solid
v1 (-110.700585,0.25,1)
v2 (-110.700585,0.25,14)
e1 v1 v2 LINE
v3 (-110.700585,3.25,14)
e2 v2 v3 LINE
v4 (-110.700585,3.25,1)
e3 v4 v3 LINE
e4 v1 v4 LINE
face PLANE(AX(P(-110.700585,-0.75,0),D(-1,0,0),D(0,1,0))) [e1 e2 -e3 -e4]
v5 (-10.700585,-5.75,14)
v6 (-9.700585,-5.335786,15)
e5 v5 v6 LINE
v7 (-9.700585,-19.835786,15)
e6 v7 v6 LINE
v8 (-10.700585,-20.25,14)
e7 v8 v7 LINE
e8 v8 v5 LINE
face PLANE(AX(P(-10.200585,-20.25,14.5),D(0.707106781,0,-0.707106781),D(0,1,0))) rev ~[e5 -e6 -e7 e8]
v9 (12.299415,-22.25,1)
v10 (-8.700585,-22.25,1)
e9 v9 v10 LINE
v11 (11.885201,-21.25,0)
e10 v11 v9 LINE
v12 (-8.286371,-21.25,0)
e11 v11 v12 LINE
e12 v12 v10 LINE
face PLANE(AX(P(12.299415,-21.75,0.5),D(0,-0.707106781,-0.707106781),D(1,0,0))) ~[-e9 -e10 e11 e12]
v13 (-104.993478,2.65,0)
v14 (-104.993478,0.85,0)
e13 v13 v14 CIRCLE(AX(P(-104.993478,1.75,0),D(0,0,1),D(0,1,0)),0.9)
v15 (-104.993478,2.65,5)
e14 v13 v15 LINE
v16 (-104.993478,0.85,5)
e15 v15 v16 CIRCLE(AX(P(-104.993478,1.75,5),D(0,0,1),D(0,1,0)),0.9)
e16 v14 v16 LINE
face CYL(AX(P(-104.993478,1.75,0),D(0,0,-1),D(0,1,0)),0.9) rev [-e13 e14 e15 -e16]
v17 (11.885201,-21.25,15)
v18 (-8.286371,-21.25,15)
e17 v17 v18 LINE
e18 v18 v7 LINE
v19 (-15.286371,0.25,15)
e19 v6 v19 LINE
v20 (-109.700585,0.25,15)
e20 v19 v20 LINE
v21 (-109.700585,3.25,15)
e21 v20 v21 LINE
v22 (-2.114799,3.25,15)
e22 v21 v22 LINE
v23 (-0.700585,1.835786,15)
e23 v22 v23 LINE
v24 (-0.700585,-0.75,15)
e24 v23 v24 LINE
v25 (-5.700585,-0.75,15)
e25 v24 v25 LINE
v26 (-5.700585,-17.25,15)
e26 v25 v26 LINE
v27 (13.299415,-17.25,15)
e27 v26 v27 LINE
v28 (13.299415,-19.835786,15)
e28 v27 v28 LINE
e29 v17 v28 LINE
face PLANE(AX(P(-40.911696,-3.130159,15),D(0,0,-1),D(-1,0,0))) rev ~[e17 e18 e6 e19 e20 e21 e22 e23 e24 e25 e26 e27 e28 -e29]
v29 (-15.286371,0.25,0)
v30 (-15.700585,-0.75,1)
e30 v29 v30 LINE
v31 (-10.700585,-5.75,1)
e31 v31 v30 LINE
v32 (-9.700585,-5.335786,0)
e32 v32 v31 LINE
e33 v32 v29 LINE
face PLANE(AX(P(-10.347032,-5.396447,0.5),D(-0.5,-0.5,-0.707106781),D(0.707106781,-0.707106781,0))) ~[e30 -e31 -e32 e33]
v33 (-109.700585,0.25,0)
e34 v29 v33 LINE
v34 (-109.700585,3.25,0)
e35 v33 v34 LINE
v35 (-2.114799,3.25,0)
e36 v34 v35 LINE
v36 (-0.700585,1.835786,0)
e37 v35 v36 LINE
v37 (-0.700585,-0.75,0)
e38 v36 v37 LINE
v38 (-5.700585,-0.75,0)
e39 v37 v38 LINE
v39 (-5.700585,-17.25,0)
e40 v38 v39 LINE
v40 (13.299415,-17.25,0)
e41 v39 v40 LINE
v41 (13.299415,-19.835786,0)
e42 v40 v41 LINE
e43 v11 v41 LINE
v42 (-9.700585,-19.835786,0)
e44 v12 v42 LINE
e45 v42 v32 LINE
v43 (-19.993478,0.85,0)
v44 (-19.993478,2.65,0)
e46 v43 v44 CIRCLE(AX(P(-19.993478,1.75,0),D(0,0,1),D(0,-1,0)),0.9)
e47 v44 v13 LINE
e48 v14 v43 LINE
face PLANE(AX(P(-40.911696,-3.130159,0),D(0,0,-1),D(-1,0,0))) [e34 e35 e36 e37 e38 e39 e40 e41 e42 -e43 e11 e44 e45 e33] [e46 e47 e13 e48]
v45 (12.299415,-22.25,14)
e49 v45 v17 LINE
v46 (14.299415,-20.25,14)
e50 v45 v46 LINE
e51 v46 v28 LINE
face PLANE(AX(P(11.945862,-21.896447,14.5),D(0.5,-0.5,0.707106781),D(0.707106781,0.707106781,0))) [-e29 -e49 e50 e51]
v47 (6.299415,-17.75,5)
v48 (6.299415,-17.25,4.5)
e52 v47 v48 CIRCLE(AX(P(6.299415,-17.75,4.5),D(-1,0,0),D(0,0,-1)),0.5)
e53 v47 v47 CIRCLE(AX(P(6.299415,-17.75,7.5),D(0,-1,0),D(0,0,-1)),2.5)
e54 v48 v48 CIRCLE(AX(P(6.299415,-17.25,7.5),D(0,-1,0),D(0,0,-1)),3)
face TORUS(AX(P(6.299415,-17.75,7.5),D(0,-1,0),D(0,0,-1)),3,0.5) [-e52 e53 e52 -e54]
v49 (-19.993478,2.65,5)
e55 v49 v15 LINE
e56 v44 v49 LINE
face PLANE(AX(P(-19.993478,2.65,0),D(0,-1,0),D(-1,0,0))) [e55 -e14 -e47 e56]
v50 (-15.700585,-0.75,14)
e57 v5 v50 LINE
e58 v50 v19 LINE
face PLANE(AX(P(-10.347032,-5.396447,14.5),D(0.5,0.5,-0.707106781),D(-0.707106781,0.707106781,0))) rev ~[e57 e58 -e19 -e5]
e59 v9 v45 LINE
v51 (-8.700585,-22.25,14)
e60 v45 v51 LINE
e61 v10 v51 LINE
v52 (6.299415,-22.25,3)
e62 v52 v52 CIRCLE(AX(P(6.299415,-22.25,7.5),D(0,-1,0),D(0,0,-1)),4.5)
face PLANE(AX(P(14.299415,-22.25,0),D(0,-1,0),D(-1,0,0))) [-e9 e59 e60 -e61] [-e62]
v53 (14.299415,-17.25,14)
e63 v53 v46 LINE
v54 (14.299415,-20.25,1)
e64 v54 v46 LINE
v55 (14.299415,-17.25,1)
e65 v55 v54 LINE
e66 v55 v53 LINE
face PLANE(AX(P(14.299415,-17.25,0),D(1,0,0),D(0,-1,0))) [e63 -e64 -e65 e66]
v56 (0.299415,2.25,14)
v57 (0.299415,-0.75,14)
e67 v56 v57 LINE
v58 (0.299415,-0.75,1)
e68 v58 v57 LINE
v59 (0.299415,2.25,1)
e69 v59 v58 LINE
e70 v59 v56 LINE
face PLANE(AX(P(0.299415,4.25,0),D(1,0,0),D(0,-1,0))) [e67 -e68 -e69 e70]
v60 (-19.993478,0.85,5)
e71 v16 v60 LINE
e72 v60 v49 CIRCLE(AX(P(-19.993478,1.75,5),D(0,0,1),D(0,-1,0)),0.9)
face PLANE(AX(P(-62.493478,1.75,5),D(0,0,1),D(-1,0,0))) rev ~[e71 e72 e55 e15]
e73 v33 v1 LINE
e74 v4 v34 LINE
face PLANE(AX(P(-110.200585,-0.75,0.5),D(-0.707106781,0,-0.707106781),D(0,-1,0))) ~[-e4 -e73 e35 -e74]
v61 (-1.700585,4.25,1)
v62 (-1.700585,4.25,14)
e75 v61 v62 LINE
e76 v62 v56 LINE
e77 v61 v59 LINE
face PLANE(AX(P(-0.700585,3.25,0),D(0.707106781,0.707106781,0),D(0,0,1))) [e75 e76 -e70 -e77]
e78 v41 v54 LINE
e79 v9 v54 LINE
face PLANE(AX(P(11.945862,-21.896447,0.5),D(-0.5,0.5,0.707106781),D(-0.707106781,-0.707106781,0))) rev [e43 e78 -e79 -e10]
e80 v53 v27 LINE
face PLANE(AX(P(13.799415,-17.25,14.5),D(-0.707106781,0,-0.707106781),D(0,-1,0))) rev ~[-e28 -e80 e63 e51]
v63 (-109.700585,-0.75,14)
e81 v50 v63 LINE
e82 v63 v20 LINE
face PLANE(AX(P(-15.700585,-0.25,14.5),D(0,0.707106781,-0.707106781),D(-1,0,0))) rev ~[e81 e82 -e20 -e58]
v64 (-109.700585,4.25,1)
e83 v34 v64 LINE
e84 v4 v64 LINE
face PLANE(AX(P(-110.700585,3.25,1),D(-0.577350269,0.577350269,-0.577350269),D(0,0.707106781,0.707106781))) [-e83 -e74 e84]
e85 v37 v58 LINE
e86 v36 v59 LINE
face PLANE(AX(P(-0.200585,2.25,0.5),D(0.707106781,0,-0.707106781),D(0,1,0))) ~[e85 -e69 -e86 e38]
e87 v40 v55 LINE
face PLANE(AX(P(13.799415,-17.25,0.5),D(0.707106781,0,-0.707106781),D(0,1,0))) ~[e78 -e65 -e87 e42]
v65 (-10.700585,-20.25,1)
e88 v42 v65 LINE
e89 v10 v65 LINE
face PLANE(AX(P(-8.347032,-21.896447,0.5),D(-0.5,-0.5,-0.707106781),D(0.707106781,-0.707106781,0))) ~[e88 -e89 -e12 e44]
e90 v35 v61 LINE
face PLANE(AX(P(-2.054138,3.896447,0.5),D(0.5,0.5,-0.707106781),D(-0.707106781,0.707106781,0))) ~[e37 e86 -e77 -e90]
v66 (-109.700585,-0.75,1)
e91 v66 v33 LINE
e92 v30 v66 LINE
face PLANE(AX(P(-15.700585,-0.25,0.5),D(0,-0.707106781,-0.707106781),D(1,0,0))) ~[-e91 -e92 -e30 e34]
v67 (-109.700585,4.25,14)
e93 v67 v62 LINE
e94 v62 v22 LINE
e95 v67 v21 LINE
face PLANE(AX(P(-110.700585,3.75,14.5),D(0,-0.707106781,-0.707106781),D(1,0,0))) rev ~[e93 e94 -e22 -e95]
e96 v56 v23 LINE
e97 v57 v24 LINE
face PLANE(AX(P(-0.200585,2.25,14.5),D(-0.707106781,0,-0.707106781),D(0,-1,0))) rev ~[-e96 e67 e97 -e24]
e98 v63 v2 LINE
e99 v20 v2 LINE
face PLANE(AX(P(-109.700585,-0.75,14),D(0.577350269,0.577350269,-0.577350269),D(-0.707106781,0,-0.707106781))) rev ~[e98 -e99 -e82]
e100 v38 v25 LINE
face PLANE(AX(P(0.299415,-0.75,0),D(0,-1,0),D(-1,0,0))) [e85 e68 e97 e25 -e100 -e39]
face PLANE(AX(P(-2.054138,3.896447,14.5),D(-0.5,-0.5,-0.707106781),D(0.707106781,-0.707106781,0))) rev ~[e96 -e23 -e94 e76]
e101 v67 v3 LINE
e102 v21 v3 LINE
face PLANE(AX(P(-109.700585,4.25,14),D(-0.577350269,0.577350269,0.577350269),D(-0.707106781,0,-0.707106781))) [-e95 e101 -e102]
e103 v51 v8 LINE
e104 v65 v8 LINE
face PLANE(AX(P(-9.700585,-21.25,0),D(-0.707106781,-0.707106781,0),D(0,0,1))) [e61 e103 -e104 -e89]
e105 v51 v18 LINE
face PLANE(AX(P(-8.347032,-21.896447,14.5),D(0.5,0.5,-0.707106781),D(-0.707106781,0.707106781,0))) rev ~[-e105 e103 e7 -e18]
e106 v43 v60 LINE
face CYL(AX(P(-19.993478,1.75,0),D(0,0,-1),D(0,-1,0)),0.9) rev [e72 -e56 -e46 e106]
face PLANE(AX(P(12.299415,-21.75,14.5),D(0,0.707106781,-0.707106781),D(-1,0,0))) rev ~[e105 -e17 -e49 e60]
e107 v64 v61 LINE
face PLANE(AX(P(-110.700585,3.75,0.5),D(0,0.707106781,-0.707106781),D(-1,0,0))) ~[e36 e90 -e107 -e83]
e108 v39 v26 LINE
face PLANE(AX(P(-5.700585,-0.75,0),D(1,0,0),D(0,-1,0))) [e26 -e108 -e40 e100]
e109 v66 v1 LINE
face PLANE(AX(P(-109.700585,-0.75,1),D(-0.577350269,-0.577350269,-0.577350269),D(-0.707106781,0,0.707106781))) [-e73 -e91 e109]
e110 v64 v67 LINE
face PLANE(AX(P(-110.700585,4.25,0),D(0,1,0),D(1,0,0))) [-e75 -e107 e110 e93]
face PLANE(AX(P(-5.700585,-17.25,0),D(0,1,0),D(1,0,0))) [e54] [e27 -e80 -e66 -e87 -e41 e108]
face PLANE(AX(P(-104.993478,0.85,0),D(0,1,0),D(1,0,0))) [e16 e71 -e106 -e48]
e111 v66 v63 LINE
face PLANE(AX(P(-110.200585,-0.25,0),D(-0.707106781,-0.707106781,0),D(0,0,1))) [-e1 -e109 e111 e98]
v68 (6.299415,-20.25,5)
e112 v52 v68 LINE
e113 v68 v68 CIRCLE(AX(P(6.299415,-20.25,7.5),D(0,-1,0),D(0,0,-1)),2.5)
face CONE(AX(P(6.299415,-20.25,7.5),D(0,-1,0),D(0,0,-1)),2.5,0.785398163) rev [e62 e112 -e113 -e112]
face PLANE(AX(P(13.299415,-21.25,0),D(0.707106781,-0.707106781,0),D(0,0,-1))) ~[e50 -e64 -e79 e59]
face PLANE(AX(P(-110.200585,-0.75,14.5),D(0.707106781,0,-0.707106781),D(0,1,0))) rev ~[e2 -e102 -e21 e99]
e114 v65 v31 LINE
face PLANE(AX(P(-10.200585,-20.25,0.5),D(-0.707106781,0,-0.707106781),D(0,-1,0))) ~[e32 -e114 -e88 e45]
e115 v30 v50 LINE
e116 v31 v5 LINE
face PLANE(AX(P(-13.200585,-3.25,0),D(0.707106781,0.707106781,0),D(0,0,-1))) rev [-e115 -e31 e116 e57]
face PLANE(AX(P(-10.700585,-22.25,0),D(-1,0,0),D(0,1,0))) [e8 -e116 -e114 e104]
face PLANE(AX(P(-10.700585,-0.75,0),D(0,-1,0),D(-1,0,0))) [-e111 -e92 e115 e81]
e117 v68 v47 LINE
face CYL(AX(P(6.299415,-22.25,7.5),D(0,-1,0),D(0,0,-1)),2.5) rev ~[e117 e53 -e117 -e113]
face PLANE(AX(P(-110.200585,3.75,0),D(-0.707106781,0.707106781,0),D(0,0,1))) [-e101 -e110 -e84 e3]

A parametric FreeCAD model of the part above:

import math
import FreeCAD as App
import Part
import Sketcher
from FreeCAD import Vector
Q = App.Units.Quantity


def edges_at(feature, points):
    """Names of the edges that pass closest to the given points."""
    edges = feature.Shape.Edges
    near = lambda p: min(range(len(edges)), key=lambda i: edges[i].distToShape(Part.Vertex(*p))[0])
    return sorted({f"Edge{near(p) + 1}" for p in points})

doc = App.newDocument("Part")
body = doc.addObject("PartDesign::Body", "Body")

# Sketch on XY plane
sketch1 = body.newObject("Sketcher::SketchObject", "Sketch")
sketch1.AttachmentSupport = (doc.getObject("XY_Plane"), [""])
sketch1.MapMode = "FlatFace"
sketch1.addGeometry([
    Part.LineSegment(Vector(-6, -1, 0), Vector(0, -1, 0)),  # 0
    Part.LineSegment(Vector(0, -1, 0), Vector(0, 4, 0)),  # 1
    Part.LineSegment(Vector(0, 4, 0), Vector(-111, 4, 0)),  # 2
    Part.LineSegment(Vector(-111, 4, 0), Vector(-111, -1, 0)),  # 3
    Part.LineSegment(Vector(-111, -1, 0), Vector(-11, -1, 0)),  # 4
    Part.LineSegment(Vector(-11, -1, 0), Vector(-11, -22, 0)),  # 5
    Part.LineSegment(Vector(-11, -22, 0), Vector(14, -22, 0)),  # 6
    Part.LineSegment(Vector(14, -22, 0), Vector(14, -17, 0)),  # 7
    Part.LineSegment(Vector(14, -17, 0), Vector(-6, -17, 0)),  # 8
    Part.LineSegment(Vector(-6, -17, 0), Vector(-6, -1, 0)),  # 9
], False)
sketch1.addConstraint([
    Sketcher.Constraint("Coincident", 0, 2, 1, 1),
    Sketcher.Constraint("Coincident", 1, 2, 2, 1),
    Sketcher.Constraint("Coincident", 2, 2, 3, 1),
    Sketcher.Constraint("Coincident", 3, 2, 4, 1),
    Sketcher.Constraint("Coincident", 4, 2, 5, 1),
    Sketcher.Constraint("Coincident", 5, 2, 6, 1),
    Sketcher.Constraint("Coincident", 6, 2, 7, 1),
    Sketcher.Constraint("Coincident", 7, 2, 8, 1),
    Sketcher.Constraint("Coincident", 8, 2, 9, 1),
    Sketcher.Constraint("Coincident", 9, 2, 0, 1),
    Sketcher.Constraint("Horizontal", 0),
    Sketcher.Constraint("Vertical", 1),
    Sketcher.Constraint("Horizontal", 2),
    Sketcher.Constraint("Vertical", 3),
    Sketcher.Constraint("Horizontal", 4),
    Sketcher.Constraint("Vertical", 5),
    Sketcher.Constraint("Horizontal", 6),
    Sketcher.Constraint("Vertical", 7),
    Sketcher.Constraint("Horizontal", 8),
    Sketcher.Constraint("Vertical", 9),
    Sketcher.Constraint("Horizontal", 0, 2, 3, 2),
    Sketcher.Constraint("Equal", 3, 7),
    Sketcher.Constraint("DistanceX", 0, 1, 0, 2, Q("6 mm")),
    Sketcher.Constraint("DistanceX", 2, 2, 2, 1, Q("111 mm")),
    Sketcher.Constraint("DistanceX", 4, 1, 4, 2, Q("100 mm")),
    Sketcher.Constraint("DistanceX", 6, 1, 6, 2, Q("25 mm")),
    Sketcher.Constraint("DistanceY", 1, 1, 1, 2, Q("5 mm")),
    Sketcher.Constraint("DistanceY", 5, 2, 5, 1, Q("21.5 mm")),
    Sketcher.Constraint("DistanceY", 0, 2, -1, 1, Q("0.75 mm")),
    Sketcher.Constraint("DistanceX", -1, 1, 0, 2, Q("0.299415 mm")),
])
pad1 = body.newObject("PartDesign::Pad", "Pad")
pad1.Profile = sketch1
pad1.Length = 15

# Sketch on XZ plane
sketch2 = body.newObject("Sketcher::SketchObject", "Sketch001")
sketch2.AttachmentSupport = (doc.getObject("XZ_Plane"), [""])
sketch2.MapMode = "FlatFace"
sketch2.AttachmentOffset = App.Placement(Vector(0, 0, 22.25), App.Rotation())
sketch2.addGeometry(Part.Circle(Vector(6.3, 7.5, 0), Vector(0, 0, 1), 2.5), False)
sketch2.addConstraint([
    Sketcher.Constraint("Diameter", 0, Q("5 mm")),
    Sketcher.Constraint("DistanceY", -1, 1, 0, 3, Q("7.5 mm")),
    Sketcher.Constraint("DistanceX", -1, 1, 0, 3, Q("6.299415 mm")),
])
pocket1 = body.newObject("PartDesign::Pocket", "Pocket")
pocket1.Profile = sketch2
pocket1.Length = 15
doc.recompute()

chamfer = body.newObject("PartDesign::Chamfer", "Chamfer")
chamfer.Base = (pocket1, edges_at(pocket1, [(6.299, -22.25, 10)]))
chamfer.Size = 2
doc.recompute()

fillet = body.newObject("PartDesign::Fillet", "Fillet")
fillet.Base = (chamfer, edges_at(chamfer, [(6.299, -17.25, 10)]))
fillet.Radius = 0.5
doc.recompute()

chamfer2 = body.newObject("PartDesign::Chamfer", "Chamfer001")
chamfer2.Base = (fillet, edges_at(fillet, [(14.299, -22.25, 7.5), (-10.701, -22.25, 7.5), (0.299, 4.25, 7.5)]))
chamfer2.Size = 2
doc.recompute()

chamfer3 = body.newObject("PartDesign::Chamfer", "Chamfer002")
chamfer3.Base = (chamfer2, edges_at(chamfer2, [(-10.701, -0.75, 7.5)]))
chamfer3.Size = 5
doc.recompute()

chamfer4 = body.newObject("PartDesign::Chamfer", "Chamfer003")
chamfer4.Base = (chamfer3, edges_at(chamfer3, [
    (13.299, -21.25, 0),
    (14.299, -18.75, 0),
    (0.299, 0.75, 0),
    (-0.701, 3.25, 0),
    (-56.201, 4.25, 0),
    (-110.701, 1.75, 0),
    (-63.201, -0.75, 0),
    (-13.201, -3.25, 0),
    (-10.701, -13, 0),
    (-9.701, -21.25, 0),
    (1.799, -22.25, 0),
    (-110.701, 1.75, 15),
    (-56.201, 4.25, 15),
    (-0.701, 3.25, 15),
    (0.299, 0.75, 15),
    (14.299, -18.75, 15),
    (13.299, -21.25, 15),
    (1.799, -22.25, 15),
    (-9.701, -21.25, 15),
    (-10.701, -13, 15),
    (-13.201, -3.25, 15),
    (-63.201, -0.75, 15),
    (-110.701, 4.25, 7.5),
    (-110.701, -0.75, 7.5),
]))
chamfer4.Size = 1

# Sketch on XY plane
sketch3 = body.newObject("Sketcher::SketchObject", "Sketch002")
sketch3.AttachmentSupport = (doc.getObject("XY_Plane"), [""])
sketch3.MapMode = "FlatFace"
sketch3.addGeometry([
    Part.LineSegment(Vector(-20, 0.8, 0), Vector(-105, 0.8, 0)),
    Part.ArcOfCircle(Part.Circle(Vector(-105, 1.8, 0), Vector(0, 0, 1), 0.9), math.radians(90), math.radians(270)),
    Part.LineSegment(Vector(-105, 2.6, 0), Vector(-20, 2.6, 0)),
    Part.ArcOfCircle(Part.Circle(Vector(-20, 1.8, 0), Vector(0, 0, 1), 0.9), math.radians(-90), math.radians(90)),
], False)
sketch3.addConstraint([
    Sketcher.Constraint("Tangent", 0, 2, 1, 2),
    Sketcher.Constraint("Tangent", 1, 1, 2, 1),
    Sketcher.Constraint("Tangent", 2, 2, 3, 2),
    Sketcher.Constraint("Tangent", 3, 1, 0, 1),
    Sketcher.Constraint("Horizontal", 0),
    Sketcher.Constraint("Horizontal", 2),
    Sketcher.Constraint("Radius", 1, Q("0.9 mm")),
    Sketcher.Constraint("DistanceX", 0, 2, 0, 1, Q("85 mm")),
    Sketcher.Constraint("DistanceY", -1, 1, 1, 3, Q("1.75 mm")),
    Sketcher.Constraint("DistanceX", 1, 3, -1, 1, Q("104.993478 mm")),
])
pocket2 = body.newObject("PartDesign::Pocket", "Pocket001")
pocket2.Profile = sketch3
pocket2.Length = 5
pocket2.Reversed = True

doc.recompute()
